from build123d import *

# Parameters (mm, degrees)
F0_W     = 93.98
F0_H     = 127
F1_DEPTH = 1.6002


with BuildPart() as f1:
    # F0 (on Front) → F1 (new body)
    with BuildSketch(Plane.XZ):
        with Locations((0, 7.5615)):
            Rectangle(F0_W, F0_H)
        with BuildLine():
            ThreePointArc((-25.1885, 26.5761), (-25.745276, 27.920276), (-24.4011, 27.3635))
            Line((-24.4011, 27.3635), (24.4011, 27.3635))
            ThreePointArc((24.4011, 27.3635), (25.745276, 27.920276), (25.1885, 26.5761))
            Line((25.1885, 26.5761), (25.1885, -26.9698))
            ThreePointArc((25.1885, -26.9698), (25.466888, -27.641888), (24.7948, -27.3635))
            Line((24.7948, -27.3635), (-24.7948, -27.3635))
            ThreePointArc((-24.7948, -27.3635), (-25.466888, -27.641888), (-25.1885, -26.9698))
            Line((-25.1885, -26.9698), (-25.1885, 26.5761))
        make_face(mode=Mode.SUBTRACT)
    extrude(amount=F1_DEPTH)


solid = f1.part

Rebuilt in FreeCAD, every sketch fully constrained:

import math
import FreeCAD as App
import Part
import Sketcher

V = App.Vector
Q = App.Units.Quantity


def add_polygon(sketch, points):
    """Adds a closed chain of lines whose ends are joined by coincident constraints."""
    first, n = sketch.GeometryCount, len(points)
    for a, b in zip(points, points[1:] + points[:1]):
        sketch.addGeometry(Part.LineSegment(App.Vector(*a, 0), App.Vector(*b, 0)), False)
    for i in range(n):
        sketch.addConstraint(Sketcher.Constraint("Coincident", first + i, 2, first + (i + 1) % n, 1))

doc = App.newDocument("Part")
body = doc.addObject("PartDesign::Body", "Body")

# Sketch on XZ plane
sketch1 = body.newObject("Sketcher::SketchObject", "Sketch")
sketch1.AttachmentSupport = (doc.getObject("XZ_Plane"), [""])
sketch1.MapMode = "FlatFace"
add_polygon(sketch1, [(-46.99, 71.06), (-46.99, -55.94), (46.99, -55.94), (46.99, 71.06)])  # lines 0-3
sketch1.addGeometry(Part.LineSegment(V(-25.19, -26.97, 0), V(-25.19, 26.58, 0)), False)  # 4
sketch1.addGeometry(Part.ArcOfCircle(Part.Circle(V(-25.19, 27.36, 0), V(0, 0, 1), 0.79), math.radians(0), math.radians(270)), False)  # 5
sketch1.addGeometry(Part.LineSegment(V(-24.4, 27.36, 0), V(24.4, 27.36, 0)), False)  # 6
sketch1.addGeometry(Part.ArcOfCircle(Part.Circle(V(25.19, 27.36, 0), V(0, 0, 1), 0.79), math.radians(-90), math.radians(180)), False)  # 7
sketch1.addGeometry(Part.LineSegment(V(25.19, 26.58, 0), V(25.19, -26.97, 0)), False)  # 8
sketch1.addGeometry(Part.ArcOfCircle(Part.Circle(V(25.19, -27.36, 0), V(0, 0, 1), 0.39), math.radians(180), math.radians(450)), False)  # 9
sketch1.addGeometry(Part.LineSegment(V(24.79, -27.36, 0), V(-24.79, -27.36, 0)), False)  # 10
sketch1.addGeometry(Part.ArcOfCircle(Part.Circle(V(-25.19, -27.36, 0), V(0, 0, 1), 0.39), math.radians(90), math.radians(360)), False)  # 11
sketch1.addConstraint(Sketcher.Constraint("Coincident", 4, 2, 5, 2))
sketch1.addConstraint(Sketcher.Constraint("Coincident", 5, 1, 6, 1))
sketch1.addConstraint(Sketcher.Constraint("Coincident", 6, 2, 7, 2))
sketch1.addConstraint(Sketcher.Constraint("Coincident", 7, 1, 8, 1))
sketch1.addConstraint(Sketcher.Constraint("Coincident", 8, 2, 9, 2))
sketch1.addConstraint(Sketcher.Constraint("Coincident", 9, 1, 10, 1))
sketch1.addConstraint(Sketcher.Constraint("Coincident", 10, 2, 11, 2))
sketch1.addConstraint(Sketcher.Constraint("Coincident", 11, 1, 4, 1))
sketch1.addConstraint(Sketcher.Constraint("Vertical", 0))
sketch1.addConstraint(Sketcher.Constraint("Horizontal", 1))
sketch1.addConstraint(Sketcher.Constraint("Vertical", 2))
sketch1.addConstraint(Sketcher.Constraint("Horizontal", 3))
sketch1.addConstraint(Sketcher.Constraint("Vertical", 4))
sketch1.addConstraint(Sketcher.Constraint("Horizontal", 6))
sketch1.addConstraint(Sketcher.Constraint("Vertical", 8))
sketch1.addConstraint(Sketcher.Constraint("Horizontal", 10))
sketch1.addConstraint(Sketcher.Constraint("Equal", 5, 7))
sketch1.addConstraint(Sketcher.Constraint("Equal", 9, 11))
sketch1.addConstraint(Sketcher.Constraint("Symmetric", 5, 3, 9, 3, -1, 1))
sketch1.addConstraint(Sketcher.Constraint("Symmetric", 7, 3, 11, 3, -1, 1))
sketch1.addConstraint(Sketcher.Constraint("Symmetric", 5, 3, 7, 3, -2))
sketch1.addConstraint(Sketcher.Constraint("Horizontal", 7, 3, 5, 1))
sketch1.addConstraint(Sketcher.Constraint("Horizontal", 11, 3, 9, 1))
sketch1.addConstraint(Sketcher.Constraint("Vertical", 11, 3, 4, 2))
sketch1.addConstraint(Sketcher.Constraint("Vertical", 9, 3, 7, 1))
sketch1.addConstraint(Sketcher.Constraint("DistanceY", 0, 2, 0, 1, Q("5 in")))
sketch1.addConstraint(Sketcher.Constraint("DistanceX", 1, 1, 1, 2, Q("3.7 in")))
sketch1.addConstraint(Sketcher.Constraint("Radius", 5, Q("0.031 in")))
sketch1.addConstraint(Sketcher.Constraint("Radius", 9, Q("0.0155 in")))
sketch1.addConstraint(Sketcher.Constraint("DistanceX", 0, 2, -1, 1, Q("1.85 in")))
sketch1.addConstraint(Sketcher.Constraint("DistanceY", 0, 2, 11, 3, Q("1.125 in")))
sketch1.addConstraint(Sketcher.Constraint("DistanceX", 6, 1, 6, 2, Q("48.8022 mm")))
sketch1.addConstraint(Sketcher.Constraint("DistanceY", 4, 1, 4, 2, Q("53.5459 mm")))
pad1 = body.newObject("PartDesign::Pad", "Pad")
pad1.Profile = sketch1
pad1.Length = Q("0.063 in")

doc.recompute()
